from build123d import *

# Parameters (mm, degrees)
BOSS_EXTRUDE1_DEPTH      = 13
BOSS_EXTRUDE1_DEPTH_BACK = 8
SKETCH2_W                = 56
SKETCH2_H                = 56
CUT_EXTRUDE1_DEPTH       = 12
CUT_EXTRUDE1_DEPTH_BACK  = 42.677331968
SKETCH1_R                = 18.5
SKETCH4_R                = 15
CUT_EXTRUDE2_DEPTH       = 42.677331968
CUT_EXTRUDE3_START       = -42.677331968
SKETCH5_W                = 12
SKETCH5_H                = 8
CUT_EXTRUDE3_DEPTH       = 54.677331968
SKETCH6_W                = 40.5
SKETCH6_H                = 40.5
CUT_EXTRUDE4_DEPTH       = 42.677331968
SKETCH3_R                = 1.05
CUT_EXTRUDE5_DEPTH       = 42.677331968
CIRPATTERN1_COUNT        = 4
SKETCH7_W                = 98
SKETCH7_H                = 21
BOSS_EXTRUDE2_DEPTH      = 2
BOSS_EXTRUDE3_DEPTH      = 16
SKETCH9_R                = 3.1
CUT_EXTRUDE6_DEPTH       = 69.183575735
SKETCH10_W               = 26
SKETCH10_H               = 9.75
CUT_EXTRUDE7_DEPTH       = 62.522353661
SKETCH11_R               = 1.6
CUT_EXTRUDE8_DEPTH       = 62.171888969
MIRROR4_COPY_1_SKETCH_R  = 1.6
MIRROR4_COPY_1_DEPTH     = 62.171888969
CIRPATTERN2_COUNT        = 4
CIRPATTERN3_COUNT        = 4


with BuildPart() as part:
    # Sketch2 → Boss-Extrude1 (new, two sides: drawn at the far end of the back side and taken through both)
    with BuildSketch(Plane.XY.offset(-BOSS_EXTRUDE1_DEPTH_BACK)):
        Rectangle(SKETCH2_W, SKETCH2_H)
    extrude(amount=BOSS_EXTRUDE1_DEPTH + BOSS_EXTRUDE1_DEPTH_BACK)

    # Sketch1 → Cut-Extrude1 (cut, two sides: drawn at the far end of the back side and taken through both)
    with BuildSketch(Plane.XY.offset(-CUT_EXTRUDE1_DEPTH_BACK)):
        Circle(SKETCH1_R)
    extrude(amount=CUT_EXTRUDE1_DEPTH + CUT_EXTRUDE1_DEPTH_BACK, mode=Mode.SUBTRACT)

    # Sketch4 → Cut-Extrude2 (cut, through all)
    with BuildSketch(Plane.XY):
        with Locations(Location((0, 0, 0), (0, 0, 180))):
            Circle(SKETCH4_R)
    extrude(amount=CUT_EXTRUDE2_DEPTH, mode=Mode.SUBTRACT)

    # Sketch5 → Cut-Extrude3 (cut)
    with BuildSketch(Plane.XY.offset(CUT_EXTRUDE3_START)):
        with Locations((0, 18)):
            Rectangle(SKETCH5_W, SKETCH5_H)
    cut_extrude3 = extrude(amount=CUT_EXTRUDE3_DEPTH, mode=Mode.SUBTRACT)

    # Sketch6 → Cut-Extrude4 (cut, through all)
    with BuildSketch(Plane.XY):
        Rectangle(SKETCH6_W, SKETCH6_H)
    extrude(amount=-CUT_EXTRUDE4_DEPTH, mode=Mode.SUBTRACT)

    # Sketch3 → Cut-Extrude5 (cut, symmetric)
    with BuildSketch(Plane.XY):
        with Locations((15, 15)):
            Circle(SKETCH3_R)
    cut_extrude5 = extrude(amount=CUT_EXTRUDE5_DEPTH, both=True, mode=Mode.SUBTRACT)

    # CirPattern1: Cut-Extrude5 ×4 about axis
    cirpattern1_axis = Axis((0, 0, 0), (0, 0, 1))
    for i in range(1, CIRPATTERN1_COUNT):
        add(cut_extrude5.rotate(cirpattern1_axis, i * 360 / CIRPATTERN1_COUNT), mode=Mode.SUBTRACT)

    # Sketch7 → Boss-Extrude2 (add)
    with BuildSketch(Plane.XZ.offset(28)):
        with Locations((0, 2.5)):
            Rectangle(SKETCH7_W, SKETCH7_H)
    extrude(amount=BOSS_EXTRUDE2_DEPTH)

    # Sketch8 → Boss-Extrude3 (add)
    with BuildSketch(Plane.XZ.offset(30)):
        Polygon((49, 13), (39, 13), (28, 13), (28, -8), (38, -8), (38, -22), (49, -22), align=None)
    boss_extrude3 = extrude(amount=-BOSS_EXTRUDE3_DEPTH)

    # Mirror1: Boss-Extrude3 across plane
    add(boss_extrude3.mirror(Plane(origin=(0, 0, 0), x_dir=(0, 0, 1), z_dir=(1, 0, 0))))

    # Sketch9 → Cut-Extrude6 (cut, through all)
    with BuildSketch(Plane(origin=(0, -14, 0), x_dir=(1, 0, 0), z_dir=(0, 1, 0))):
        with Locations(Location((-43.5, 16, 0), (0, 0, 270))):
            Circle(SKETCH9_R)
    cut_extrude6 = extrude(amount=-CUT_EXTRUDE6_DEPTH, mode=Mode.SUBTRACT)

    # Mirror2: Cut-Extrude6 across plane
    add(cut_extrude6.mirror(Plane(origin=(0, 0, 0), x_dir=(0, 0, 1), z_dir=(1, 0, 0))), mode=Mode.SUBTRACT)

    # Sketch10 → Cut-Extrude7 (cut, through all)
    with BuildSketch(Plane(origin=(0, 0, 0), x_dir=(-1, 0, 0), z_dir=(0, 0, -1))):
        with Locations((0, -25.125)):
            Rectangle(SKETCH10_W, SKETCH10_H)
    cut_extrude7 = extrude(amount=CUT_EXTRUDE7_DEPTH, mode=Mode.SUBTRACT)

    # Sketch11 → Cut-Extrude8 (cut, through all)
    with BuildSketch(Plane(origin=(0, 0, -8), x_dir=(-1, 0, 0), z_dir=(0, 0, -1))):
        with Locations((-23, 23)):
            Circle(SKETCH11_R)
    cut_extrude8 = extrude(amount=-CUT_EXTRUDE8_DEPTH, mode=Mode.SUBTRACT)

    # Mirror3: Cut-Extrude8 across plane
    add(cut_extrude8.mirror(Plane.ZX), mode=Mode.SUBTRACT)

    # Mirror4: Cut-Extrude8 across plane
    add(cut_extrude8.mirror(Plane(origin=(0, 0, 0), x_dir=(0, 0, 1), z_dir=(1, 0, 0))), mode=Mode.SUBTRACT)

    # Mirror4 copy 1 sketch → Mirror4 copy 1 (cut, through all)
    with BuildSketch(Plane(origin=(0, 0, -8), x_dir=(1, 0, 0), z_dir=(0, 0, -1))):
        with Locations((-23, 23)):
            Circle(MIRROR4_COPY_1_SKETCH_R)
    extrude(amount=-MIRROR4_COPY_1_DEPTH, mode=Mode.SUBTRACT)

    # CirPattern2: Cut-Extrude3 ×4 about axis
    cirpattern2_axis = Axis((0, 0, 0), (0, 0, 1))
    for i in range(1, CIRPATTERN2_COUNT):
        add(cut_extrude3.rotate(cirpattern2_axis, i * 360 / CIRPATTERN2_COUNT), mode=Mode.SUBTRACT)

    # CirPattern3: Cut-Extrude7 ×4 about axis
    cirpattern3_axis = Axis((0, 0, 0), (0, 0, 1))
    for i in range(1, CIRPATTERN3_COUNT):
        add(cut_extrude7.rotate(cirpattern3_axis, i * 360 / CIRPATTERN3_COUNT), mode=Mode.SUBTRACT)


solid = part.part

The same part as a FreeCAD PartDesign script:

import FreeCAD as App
import Part
import Sketcher

V = App.Vector


def add_polygon(sketch, points):
    """Adds a closed chain of lines whose ends are joined by coincident constraints."""
    first, n = sketch.GeometryCount, len(points)
    for a, b in zip(points, points[1:] + points[:1]):
        sketch.addGeometry(Part.LineSegment(App.Vector(*a, 0), App.Vector(*b, 0)), False)
    for i in range(n):
        sketch.addConstraint(Sketcher.Constraint("Coincident", first + i, 2, first + (i + 1) % n, 1))

doc = App.newDocument("Part")
params = doc.addObject("Spreadsheet::Sheet", "Params")
for row, (alias, value) in enumerate([
    ("sketch1_width", "56 mm"),
    ("pad1_length", "13 mm"),
    ("pad1_length2", "8 mm"),
    ("sketch2_diameter", "37 mm"),
    ("pocket1_length", "12 mm"),
    ("pocket1_length2", "42.677332 mm"),
    ("sketch3_diameter", "30 mm"),
    ("sketch4_width", "12 mm"),
    ("sketch4_height", "8 mm"),
    ("pocket3_length", "54.677332 mm"),
    ("sketch5_width", "40.5 mm"),
    ("sketch6_diameter", "2.1 mm"),
    ("pocket5_length", "85.354664 mm"),
    ("sketch7_width", "98 mm"),
    ("sketch7_height", "21 mm"),
    ("pad2_length", "2 mm"),
    ("sketch8_width", "21 mm"),
    ("sketch8_width2", "10 mm"),
    ("sketch8_height", "14 mm"),
    ("pad3_length", "16 mm"),
    ("sketch9_diameter", "6.2 mm"),
    ("sketch10_width", "26 mm"),
    ("sketch10_height", "9.75 mm"),
    ("sketch11_diameter", "3.2 mm"),
    ("sketch12_diameter", "3.2 mm"),
], start=1):
    params.set(f"A{row}", alias)
    params.set(f"B{row}", "=" + value)
    params.setAlias(f"B{row}", alias)

body = doc.addObject("PartDesign::Body", "Body")

sketch1 = body.newObject("Sketcher::SketchObject", "Sketch")
sketch1.AttachmentSupport = (doc.getObject("XY_Plane"), [""])
sketch1.MapMode = "FlatFace"
add_polygon(sketch1, [(-28, 28), (-28, -28), (28, -28), (28, 28)])
sketch1.addConstraint([
    Sketcher.Constraint("Vertical", 0),
    Sketcher.Constraint("Horizontal", 1),
    Sketcher.Constraint("Vertical", 2),
    Sketcher.Constraint("Horizontal", 3),
    Sketcher.Constraint("Symmetric", 0, 2, 2, 2, -1, 1),
    Sketcher.Constraint("Equal", 3, 0),
    Sketcher.Constraint("DistanceX", 1, 1, 1, 2, 56.0),
])
sketch1.setExpression("Constraints[10]", "Params.sketch1_width")
pad1 = body.newObject("PartDesign::Pad", "Pad")
pad1.Profile = sketch1
pad1.Type = "TwoLengths"
pad1.setExpression("Length", "Params.pad1_length")
pad1.setExpression("Length2", "Params.pad1_length2")

sketch2 = body.newObject("Sketcher::SketchObject", "Sketch001")
sketch2.AttachmentSupport = (doc.getObject("XY_Plane"), [""])
sketch2.MapMode = "FlatFace"
sketch2.addGeometry(Part.Circle(V(0, 0, 0), V(0, 0, 1), 18), False)
sketch2.addConstraint([
    Sketcher.Constraint("Coincident", 0, 3, -1, 1),
    Sketcher.Constraint("Diameter", 0, 37.0),
])
sketch2.setExpression("Constraints[1]", "Params.sketch2_diameter")
pocket1 = body.newObject("PartDesign::Pocket", "Pocket")
pocket1.Profile = sketch2
pocket1.Type = "TwoLengths"
pocket1.setExpression("Length", "Params.pocket1_length")
pocket1.setExpression("Length2", "Params.pocket1_length2")
pocket1.Reversed = True

sketch3 = body.newObject("Sketcher::SketchObject", "Sketch002")
sketch3.AttachmentSupport = (doc.getObject("XY_Plane"), [""])
sketch3.MapMode = "FlatFace"
sketch3.addGeometry(Part.Circle(V(0, 0, 0), V(0, 0, 1), 15), False)
sketch3.addConstraint([
    Sketcher.Constraint("Coincident", 0, 3, -1, 1),
    Sketcher.Constraint("Diameter", 0, 30.0),
])
sketch3.setExpression("Constraints[1]", "Params.sketch3_diameter")
pocket2 = body.newObject("PartDesign::Pocket", "Pocket001")
pocket2.Profile = sketch3
pocket2.Type = "ThroughAll"
pocket2.Reversed = True

sketch4 = body.newObject("Sketcher::SketchObject", "Sketch003")
sketch4.AttachmentSupport = (doc.getObject("XY_Plane"), [""])
sketch4.MapMode = "FlatFace"
sketch4.AttachmentOffset = App.Placement(V(0, 0, -42.677332), App.Rotation())
add_polygon(sketch4, [(-6, 22), (-6, 14), (6, 14), (6, 22)])
sketch4.addConstraint([
    Sketcher.Constraint("Vertical", 0),
    Sketcher.Constraint("Horizontal", 1),
    Sketcher.Constraint("Vertical", 2),
    Sketcher.Constraint("Horizontal", 3),
    Sketcher.Constraint("DistanceX", 1, 1, 1, 2, 12.0),
    Sketcher.Constraint("DistanceY", 0, 2, 0, 1, 8.0),
    Sketcher.Constraint("DistanceX", 0, 2, -1, 1, 6.0),
    Sketcher.Constraint("DistanceY", -1, 1, 0, 2, 14.0),
])
sketch4.setExpression("Constraints[8]", "Params.sketch4_width")
sketch4.setExpression("Constraints[9]", "Params.sketch4_height")
pocket3 = body.newObject("PartDesign::Pocket", "Pocket002")
pocket3.Profile = sketch4
pocket3.setExpression("Length", "Params.pocket3_length")
pocket3.Reversed = True

sketch5 = body.newObject("Sketcher::SketchObject", "Sketch004")
sketch5.AttachmentSupport = (doc.getObject("XY_Plane"), [""])
sketch5.MapMode = "FlatFace"
add_polygon(sketch5, [(-20, 20), (-20, -20), (20, -20), (20, 20)])
sketch5.addConstraint([
    Sketcher.Constraint("Vertical", 0),
    Sketcher.Constraint("Horizontal", 1),
    Sketcher.Constraint("Vertical", 2),
    Sketcher.Constraint("Horizontal", 3),
    Sketcher.Constraint("Symmetric", 0, 2, 2, 2, -1, 1),
    Sketcher.Constraint("Equal", 3, 0),
    Sketcher.Constraint("DistanceX", 1, 1, 1, 2, 40.5),
])
sketch5.setExpression("Constraints[10]", "Params.sketch5_width")
pocket4 = body.newObject("PartDesign::Pocket", "Pocket003")
pocket4.Profile = sketch5
pocket4.Type = "ThroughAll"

sketch6 = body.newObject("Sketcher::SketchObject", "Sketch005")
sketch6.AttachmentSupport = (doc.getObject("XY_Plane"), [""])
sketch6.MapMode = "FlatFace"
sketch6.addGeometry(Part.Circle(V(15, 15, 0), V(0, 0, 1), 1.1), False)
sketch6.addConstraint([
    Sketcher.Constraint("Diameter", 0, 2.1),
    Sketcher.Constraint("DistanceX", -1, 1, 0, 3, 15.0),
    Sketcher.Constraint("DistanceY", -1, 1, 0, 3, 15.0),
])
sketch6.setExpression("Constraints[0]", "Params.sketch6_diameter")
pocket5 = body.newObject("PartDesign::Pocket", "Pocket004")
pocket5.Profile = sketch6
pocket5.setExpression("Length", "Params.pocket5_length")
pocket5.Midplane = True
doc.recompute()

polarpattern = body.newObject("PartDesign::PolarPattern", "PolarPattern")
polarpattern.Originals = [pocket5]
polarpattern.Axis = (doc.getObject("Z_Axis"), [""])
polarpattern.Angle = 360
polarpattern.Occurrences = 4
body.Tip = polarpattern

sketch7 = body.newObject("Sketcher::SketchObject", "Sketch006")
sketch7.AttachmentSupport = (doc.getObject("XZ_Plane"), [""])
sketch7.MapMode = "FlatFace"
sketch7.AttachmentOffset = App.Placement(V(0, 0, 28), App.Rotation())
add_polygon(sketch7, [(-49, 13), (-49, -8), (49, -8), (49, 13)])
sketch7.addConstraint([
    Sketcher.Constraint("Vertical", 0),
    Sketcher.Constraint("Horizontal", 1),
    Sketcher.Constraint("Vertical", 2),
    Sketcher.Constraint("Horizontal", 3),
    Sketcher.Constraint("DistanceX", 1, 1, 1, 2, 98.0),
    Sketcher.Constraint("DistanceY", 0, 2, 0, 1, 21.0),
    Sketcher.Constraint("DistanceX", 0, 2, -1, 1, 49.0),
    Sketcher.Constraint("DistanceY", 0, 2, -1, 1, 8.0),
])
sketch7.setExpression("Constraints[8]", "Params.sketch7_width")
sketch7.setExpression("Constraints[9]", "Params.sketch7_height")
pad2 = body.newObject("PartDesign::Pad", "Pad001")
pad2.Profile = sketch7
pad2.setExpression("Length", "Params.pad2_length")

sketch8 = body.newObject("Sketcher::SketchObject", "Sketch007")
sketch8.AttachmentSupport = (doc.getObject("XZ_Plane"), [""])
sketch8.MapMode = "FlatFace"
sketch8.AttachmentOffset = App.Placement(V(0, 0, 30), App.Rotation())
add_polygon(sketch8, [(49, 13), (28, 13), (28, -8), (38, -8), (38, -22), (49, -22)])
sketch8.addConstraint([
    Sketcher.Constraint("Horizontal", 0),
    Sketcher.Constraint("Vertical", 1),
    Sketcher.Constraint("Horizontal", 2),
    Sketcher.Constraint("Vertical", 3),
    Sketcher.Constraint("Horizontal", 4),
    Sketcher.Constraint("Vertical", 5),
    Sketcher.Constraint("Equal", 0, 1),
    Sketcher.Constraint("DistanceX", 0, 2, 0, 1, 21.0),
    Sketcher.Constraint("DistanceX", 2, 1, 2, 2, 10.0),
    Sketcher.Constraint("DistanceY", 3, 2, 3, 1, 14.0),
    Sketcher.Constraint("DistanceX", -1, 1, 0, 2, 28.0),
    Sketcher.Constraint("DistanceY", -1, 1, 0, 2, 13.0),
])
sketch8.setExpression("Constraints[13]", "Params.sketch8_width")
sketch8.setExpression("Constraints[14]", "Params.sketch8_width2")
sketch8.setExpression("Constraints[15]", "Params.sketch8_height")
pad3 = body.newObject("PartDesign::Pad", "Pad002")
pad3.Profile = sketch8
pad3.setExpression("Length", "Params.pad3_length")
pad3.Reversed = True
doc.recompute()

mirrored = body.newObject("PartDesign::Mirrored", "Mirrored")
mirrored.Originals = [pad3]
mirrored.MirrorPlane = (doc.getObject("YZ_Plane"), [""])
body.Tip = mirrored

sketch9 = body.newObject("Sketcher::SketchObject", "Sketch008")
sketch9.AttachmentSupport = (doc.getObject("XZ_Plane"), [""])
sketch9.MapMode = "FlatFace"
sketch9.AttachmentOffset = App.Placement(V(0, 0, 14), App.Rotation())
sketch9.addGeometry(Part.Circle(V(-43.5, -16, 0), V(0, 0, 1), 3.1), False)
sketch9.addConstraint([
    Sketcher.Constraint("Diameter", 0, 6.2),
    Sketcher.Constraint("DistanceY", 0, 3, -1, 1, 16.0),
    Sketcher.Constraint("DistanceX", 0, 3, -1, 1, 43.5),
])
sketch9.setExpression("Constraints[0]", "Params.sketch9_diameter")
pocket6 = body.newObject("PartDesign::Pocket", "Pocket005")
pocket6.Profile = sketch9
pocket6.Type = "ThroughAll"
pocket6.Reversed = True
doc.recompute()

mirrored2 = body.newObject("PartDesign::Mirrored", "Mirrored001")
mirrored2.Originals = [pocket6]
mirrored2.MirrorPlane = (doc.getObject("YZ_Plane"), [""])
body.Tip = mirrored2

sketch10 = body.newObject("Sketcher::SketchObject", "Sketch009")
sketch10.AttachmentSupport = (doc.getObject("XY_Plane"), [""])
sketch10.MapMode = "FlatFace"
add_polygon(sketch10, [(13, -20), (13, -30), (-13, -30), (-13, -20)])
sketch10.addConstraint([
    Sketcher.Constraint("Vertical", 0),
    Sketcher.Constraint("Horizontal", 1),
    Sketcher.Constraint("Vertical", 2),
    Sketcher.Constraint("Horizontal", 3),
    Sketcher.Constraint("DistanceX", 1, 2, 1, 1, 26.0),
    Sketcher.Constraint("DistanceX", -1, 1, 0, 2, 13.0),
    Sketcher.Constraint("DistanceY", 0, 2, -1, 1, 30.0),
    Sketcher.Constraint("DistanceY", 0, 2, 0, 1, 9.75),
])
sketch10.setExpression("Constraints[8]", "Params.sketch10_width")
sketch10.setExpression("Constraints[11]", "Params.sketch10_height")
pocket7 = body.newObject("PartDesign::Pocket", "Pocket006")
pocket7.Profile = sketch10
pocket7.Type = "ThroughAll"

sketch11 = body.newObject("Sketcher::SketchObject", "Sketch010")
sketch11.AttachmentSupport = (doc.getObject("XY_Plane"), [""])
sketch11.MapMode = "FlatFace"
sketch11.AttachmentOffset = App.Placement(V(0, 0, -8), App.Rotation())
sketch11.addGeometry(Part.Circle(V(23, 23, 0), V(0, 0, 1), 1.6), False)
sketch11.addConstraint([
    Sketcher.Constraint("Diameter", 0, 3.2),
    Sketcher.Constraint("DistanceX", -1, 1, 0, 3, 23.0),
    Sketcher.Constraint("DistanceY", -1, 1, 0, 3, 23.0),
])
sketch11.setExpression("Constraints[0]", "Params.sketch11_diameter")
pocket8 = body.newObject("PartDesign::Pocket", "Pocket007")
pocket8.Profile = sketch11
pocket8.Type = "ThroughAll"
pocket8.Reversed = True
doc.recompute()

mirrored3 = body.newObject("PartDesign::Mirrored", "Mirrored002")
mirrored3.Originals = [pocket8]
mirrored3.MirrorPlane = (doc.getObject("XZ_Plane"), [""])
body.Tip = mirrored3
doc.recompute()

mirrored4 = body.newObject("PartDesign::Mirrored", "Mirrored003")
mirrored4.Originals = [pocket8]
mirrored4.MirrorPlane = (doc.getObject("YZ_Plane"), [""])
body.Tip = mirrored4

sketch12 = body.newObject("Sketcher::SketchObject", "Sketch011")
sketch12.AttachmentSupport = (doc.getObject("XY_Plane"), [""])
sketch12.MapMode = "FlatFace"
sketch12.AttachmentOffset = App.Placement(V(0, 0, -8), App.Rotation())
sketch12.addGeometry(Part.Circle(V(-23, -23, 0), V(0, 0, 1), 1.6), False)
sketch12.addConstraint([
    Sketcher.Constraint("Diameter", 0, 3.2),
    Sketcher.Constraint("DistanceX", 0, 3, -1, 1, 23.0),
    Sketcher.Constraint("DistanceY", 0, 3, -1, 1, 23.0),
])
sketch12.setExpression("Constraints[0]", "Params.sketch12_diameter")
pocket9 = body.newObject("PartDesign::Pocket", "Pocket008")
pocket9.Profile = sketch12
pocket9.Type = "ThroughAll"
pocket9.Reversed = True
doc.recompute()

polarpattern2 = body.newObject("PartDesign::PolarPattern", "PolarPattern001")
polarpattern2.Originals = [pocket3]
polarpattern2.Axis = (doc.getObject("Z_Axis"), [""])
polarpattern2.Angle = 360
polarpattern2.Occurrences = 4
body.Tip = polarpattern2
doc.recompute()

polarpattern3 = body.newObject("PartDesign::PolarPattern", "PolarPattern002")
polarpattern3.Originals = [pocket7]
polarpattern3.Axis = (doc.getObject("Z_Axis"), [""])
polarpattern3.Angle = 360
polarpattern3.Occurrences = 4
body.Tip = polarpattern3

doc.recompute()
